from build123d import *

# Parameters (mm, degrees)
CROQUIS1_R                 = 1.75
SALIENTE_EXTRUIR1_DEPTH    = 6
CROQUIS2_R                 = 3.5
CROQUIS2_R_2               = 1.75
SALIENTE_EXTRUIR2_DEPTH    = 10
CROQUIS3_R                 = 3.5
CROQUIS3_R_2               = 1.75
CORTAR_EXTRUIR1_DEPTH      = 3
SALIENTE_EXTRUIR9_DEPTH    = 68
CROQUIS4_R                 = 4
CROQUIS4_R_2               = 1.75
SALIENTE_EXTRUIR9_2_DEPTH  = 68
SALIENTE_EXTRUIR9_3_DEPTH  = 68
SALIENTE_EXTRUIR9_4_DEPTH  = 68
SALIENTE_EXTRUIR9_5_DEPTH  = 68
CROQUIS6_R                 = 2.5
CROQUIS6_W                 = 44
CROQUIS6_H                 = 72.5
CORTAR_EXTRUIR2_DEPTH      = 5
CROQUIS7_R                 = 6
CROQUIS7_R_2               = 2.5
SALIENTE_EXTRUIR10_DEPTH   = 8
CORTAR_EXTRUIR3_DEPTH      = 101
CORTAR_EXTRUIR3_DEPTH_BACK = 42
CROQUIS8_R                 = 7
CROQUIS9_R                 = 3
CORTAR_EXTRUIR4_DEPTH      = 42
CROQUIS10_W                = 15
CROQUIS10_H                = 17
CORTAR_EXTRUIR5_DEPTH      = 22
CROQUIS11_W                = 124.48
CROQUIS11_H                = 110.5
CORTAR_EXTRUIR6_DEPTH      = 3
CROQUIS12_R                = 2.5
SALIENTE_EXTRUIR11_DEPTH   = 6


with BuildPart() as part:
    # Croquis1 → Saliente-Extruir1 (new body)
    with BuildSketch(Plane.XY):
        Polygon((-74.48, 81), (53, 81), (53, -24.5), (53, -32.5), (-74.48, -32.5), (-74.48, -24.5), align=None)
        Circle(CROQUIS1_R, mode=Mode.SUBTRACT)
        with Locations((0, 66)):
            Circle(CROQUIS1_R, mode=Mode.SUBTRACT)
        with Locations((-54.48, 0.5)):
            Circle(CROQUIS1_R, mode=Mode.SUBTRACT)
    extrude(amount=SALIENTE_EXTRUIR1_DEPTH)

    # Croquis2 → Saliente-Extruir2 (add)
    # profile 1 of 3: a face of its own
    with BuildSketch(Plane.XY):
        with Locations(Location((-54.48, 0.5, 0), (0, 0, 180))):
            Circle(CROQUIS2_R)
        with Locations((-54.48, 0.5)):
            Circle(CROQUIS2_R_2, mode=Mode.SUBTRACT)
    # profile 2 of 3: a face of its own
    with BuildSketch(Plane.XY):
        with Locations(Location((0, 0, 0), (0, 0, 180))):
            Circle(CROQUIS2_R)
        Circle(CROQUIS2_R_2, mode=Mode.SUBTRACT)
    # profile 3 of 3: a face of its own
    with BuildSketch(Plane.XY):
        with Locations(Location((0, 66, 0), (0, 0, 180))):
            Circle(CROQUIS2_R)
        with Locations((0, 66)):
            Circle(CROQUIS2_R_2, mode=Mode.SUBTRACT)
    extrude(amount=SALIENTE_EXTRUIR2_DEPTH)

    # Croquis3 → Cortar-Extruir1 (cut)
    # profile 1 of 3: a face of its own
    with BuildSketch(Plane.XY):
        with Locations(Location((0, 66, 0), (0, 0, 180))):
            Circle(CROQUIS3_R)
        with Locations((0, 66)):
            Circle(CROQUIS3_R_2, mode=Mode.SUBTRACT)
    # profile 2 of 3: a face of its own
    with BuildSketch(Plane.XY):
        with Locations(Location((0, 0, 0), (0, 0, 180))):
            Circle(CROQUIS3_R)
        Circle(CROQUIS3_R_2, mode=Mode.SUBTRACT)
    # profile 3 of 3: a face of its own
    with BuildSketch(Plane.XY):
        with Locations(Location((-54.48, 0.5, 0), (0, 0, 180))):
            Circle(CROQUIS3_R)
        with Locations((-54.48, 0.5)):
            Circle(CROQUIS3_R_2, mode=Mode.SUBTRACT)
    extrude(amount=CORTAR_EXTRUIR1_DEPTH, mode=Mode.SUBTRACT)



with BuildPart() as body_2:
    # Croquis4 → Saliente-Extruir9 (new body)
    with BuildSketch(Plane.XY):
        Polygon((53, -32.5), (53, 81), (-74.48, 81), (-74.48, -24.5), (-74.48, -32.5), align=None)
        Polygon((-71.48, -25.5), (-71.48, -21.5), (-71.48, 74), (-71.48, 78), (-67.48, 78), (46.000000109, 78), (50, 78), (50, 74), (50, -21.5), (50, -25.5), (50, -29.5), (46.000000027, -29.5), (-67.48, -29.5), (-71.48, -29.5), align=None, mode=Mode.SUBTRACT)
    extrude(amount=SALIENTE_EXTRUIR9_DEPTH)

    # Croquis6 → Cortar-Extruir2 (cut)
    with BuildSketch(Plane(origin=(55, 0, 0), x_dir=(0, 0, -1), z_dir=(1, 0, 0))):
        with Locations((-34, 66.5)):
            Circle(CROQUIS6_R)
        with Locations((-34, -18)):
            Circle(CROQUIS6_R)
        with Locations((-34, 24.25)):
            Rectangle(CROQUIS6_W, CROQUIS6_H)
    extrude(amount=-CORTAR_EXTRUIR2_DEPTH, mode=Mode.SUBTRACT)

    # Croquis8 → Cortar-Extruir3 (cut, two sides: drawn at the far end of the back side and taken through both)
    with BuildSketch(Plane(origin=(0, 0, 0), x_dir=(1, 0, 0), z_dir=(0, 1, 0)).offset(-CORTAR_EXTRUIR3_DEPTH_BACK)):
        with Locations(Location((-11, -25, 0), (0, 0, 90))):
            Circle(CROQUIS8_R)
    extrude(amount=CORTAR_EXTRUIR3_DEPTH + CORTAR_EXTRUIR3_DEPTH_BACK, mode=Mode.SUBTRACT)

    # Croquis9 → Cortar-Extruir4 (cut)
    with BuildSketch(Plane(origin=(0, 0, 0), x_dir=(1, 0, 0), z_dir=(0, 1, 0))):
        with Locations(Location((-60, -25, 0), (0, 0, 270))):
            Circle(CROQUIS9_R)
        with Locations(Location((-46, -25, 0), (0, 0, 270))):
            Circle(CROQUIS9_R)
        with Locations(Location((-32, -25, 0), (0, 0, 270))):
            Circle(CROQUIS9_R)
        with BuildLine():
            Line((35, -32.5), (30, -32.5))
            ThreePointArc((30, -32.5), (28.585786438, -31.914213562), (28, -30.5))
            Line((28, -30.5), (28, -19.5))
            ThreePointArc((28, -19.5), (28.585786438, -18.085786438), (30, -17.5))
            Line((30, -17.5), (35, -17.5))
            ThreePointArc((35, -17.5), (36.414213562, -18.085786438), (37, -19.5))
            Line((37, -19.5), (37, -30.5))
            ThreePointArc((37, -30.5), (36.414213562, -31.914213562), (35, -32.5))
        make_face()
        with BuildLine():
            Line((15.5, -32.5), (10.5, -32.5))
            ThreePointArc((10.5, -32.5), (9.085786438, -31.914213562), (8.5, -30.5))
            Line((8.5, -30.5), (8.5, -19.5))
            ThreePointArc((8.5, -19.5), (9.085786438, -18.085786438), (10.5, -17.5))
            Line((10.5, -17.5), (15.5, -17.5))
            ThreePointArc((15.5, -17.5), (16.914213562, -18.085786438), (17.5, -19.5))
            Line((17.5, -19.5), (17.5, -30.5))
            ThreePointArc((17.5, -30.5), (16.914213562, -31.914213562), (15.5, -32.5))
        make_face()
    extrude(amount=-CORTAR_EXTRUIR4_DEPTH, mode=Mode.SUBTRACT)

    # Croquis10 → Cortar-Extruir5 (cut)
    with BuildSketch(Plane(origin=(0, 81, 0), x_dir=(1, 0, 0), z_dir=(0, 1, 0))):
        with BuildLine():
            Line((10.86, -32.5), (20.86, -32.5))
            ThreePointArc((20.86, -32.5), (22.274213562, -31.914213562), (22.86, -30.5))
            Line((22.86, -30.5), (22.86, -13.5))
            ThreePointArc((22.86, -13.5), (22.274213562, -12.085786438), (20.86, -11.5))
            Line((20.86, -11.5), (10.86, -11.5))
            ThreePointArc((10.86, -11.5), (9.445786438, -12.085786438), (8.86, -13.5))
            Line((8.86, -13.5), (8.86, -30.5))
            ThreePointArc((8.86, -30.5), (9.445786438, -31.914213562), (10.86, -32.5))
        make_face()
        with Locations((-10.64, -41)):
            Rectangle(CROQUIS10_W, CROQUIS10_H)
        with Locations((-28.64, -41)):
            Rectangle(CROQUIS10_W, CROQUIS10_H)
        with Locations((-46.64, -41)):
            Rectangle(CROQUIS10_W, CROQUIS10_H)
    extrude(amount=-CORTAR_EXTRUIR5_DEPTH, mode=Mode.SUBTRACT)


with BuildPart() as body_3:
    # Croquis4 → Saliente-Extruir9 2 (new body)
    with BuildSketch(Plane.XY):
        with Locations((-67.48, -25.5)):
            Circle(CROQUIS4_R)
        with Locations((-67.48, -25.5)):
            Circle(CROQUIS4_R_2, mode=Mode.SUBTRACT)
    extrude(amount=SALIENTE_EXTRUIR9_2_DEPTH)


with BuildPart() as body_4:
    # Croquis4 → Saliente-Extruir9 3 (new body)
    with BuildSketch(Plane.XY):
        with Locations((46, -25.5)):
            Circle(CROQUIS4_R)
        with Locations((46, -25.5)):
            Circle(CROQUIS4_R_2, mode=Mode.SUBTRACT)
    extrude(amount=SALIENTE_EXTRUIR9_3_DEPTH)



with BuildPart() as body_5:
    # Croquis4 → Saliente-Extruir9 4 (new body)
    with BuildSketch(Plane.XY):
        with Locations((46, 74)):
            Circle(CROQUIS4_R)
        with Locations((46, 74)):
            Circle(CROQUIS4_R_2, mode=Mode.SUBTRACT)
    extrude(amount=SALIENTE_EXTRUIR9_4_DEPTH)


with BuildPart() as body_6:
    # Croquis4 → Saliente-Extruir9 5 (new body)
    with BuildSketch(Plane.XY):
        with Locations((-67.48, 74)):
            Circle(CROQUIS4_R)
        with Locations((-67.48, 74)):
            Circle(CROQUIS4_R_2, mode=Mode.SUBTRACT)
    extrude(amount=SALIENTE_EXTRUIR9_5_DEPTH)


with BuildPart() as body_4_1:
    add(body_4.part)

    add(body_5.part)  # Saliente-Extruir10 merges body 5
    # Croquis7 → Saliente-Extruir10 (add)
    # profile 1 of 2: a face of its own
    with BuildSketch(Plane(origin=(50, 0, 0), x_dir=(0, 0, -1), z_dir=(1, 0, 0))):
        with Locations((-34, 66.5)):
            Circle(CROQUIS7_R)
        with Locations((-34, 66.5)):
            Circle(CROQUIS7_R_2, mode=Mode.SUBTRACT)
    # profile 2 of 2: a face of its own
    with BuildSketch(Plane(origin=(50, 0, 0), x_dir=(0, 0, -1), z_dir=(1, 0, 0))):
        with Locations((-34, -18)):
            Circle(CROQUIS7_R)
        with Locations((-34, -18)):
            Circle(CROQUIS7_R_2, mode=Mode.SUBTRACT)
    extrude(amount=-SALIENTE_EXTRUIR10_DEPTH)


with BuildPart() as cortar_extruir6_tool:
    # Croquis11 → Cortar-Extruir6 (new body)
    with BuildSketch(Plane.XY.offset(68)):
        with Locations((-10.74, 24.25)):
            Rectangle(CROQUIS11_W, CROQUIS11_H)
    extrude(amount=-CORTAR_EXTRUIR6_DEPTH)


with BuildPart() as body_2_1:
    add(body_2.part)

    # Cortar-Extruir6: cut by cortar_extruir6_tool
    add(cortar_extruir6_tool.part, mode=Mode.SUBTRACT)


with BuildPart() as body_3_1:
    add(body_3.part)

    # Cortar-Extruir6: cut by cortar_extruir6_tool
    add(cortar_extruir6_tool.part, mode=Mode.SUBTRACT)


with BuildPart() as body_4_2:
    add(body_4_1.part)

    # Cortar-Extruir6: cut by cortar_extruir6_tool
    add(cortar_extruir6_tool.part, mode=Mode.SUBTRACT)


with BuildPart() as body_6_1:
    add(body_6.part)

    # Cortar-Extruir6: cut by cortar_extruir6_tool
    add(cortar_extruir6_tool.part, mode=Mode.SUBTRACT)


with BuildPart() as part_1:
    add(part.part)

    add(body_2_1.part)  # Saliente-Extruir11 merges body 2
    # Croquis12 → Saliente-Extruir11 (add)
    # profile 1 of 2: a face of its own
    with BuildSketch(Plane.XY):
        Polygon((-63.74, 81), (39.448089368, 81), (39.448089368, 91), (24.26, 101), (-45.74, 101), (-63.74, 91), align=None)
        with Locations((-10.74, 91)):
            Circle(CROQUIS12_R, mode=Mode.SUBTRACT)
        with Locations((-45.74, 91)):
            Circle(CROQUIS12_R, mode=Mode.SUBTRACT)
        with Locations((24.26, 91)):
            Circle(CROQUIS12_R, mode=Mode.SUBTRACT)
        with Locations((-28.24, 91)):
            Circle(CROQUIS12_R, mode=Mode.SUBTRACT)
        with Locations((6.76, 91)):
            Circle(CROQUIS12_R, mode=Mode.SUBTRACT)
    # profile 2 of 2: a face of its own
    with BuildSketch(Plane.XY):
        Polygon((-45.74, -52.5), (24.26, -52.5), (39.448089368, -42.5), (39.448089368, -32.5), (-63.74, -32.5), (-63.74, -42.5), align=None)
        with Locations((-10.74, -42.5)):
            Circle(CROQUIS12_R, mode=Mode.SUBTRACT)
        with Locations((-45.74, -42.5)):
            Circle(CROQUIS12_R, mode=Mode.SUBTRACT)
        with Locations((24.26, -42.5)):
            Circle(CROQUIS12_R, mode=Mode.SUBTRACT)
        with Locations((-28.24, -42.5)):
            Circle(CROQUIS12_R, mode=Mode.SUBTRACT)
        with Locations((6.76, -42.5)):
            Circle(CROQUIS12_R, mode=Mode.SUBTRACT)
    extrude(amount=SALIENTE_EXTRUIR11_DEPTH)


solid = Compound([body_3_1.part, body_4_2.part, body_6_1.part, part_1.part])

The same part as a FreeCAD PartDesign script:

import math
import FreeCAD as App
import Part
import Sketcher


def add_polygon(sketch, points):
    """Adds a closed chain of lines whose ends are joined by coincident constraints."""
    first, n = sketch.GeometryCount, len(points)
    for a, b in zip(points, points[1:] + points[:1]):
        sketch.addGeometry(Part.LineSegment(App.Vector(*a, 0), App.Vector(*b, 0)), False)
    for i in range(n):
        sketch.addConstraint(Sketcher.Constraint("Coincident", first + i, 2, first + (i + 1) % n, 1))

doc = App.newDocument("Part")
body = doc.addObject("PartDesign::Body", "Body")

# Sketch on XY plane
sketch1 = body.newObject("Sketcher::SketchObject", "Sketch")
sketch1.AttachmentSupport = (doc.getObject("XY_Plane"), [""])
sketch1.MapMode = "FlatFace"
add_polygon(sketch1, [(53, 81), (-74.5, 81), (-74.5, -32.5), (53, -32.5)])  # lines 0-3
sketch1.addGeometry(Part.Circle(App.Vector(0, 0, 0), App.Vector(0, 0, 1), 1.8), False)  # 4
sketch1.addGeometry(Part.Circle(App.Vector(-54.5, 0.5, 0), App.Vector(0, 0, 1), 1.8), False)  # 5
sketch1.addGeometry(Part.Circle(App.Vector(0, 66, 0), App.Vector(0, 0, 1), 1.8), False)  # 6
sketch1.addConstraint(Sketcher.Constraint("Horizontal", 0))
sketch1.addConstraint(Sketcher.Constraint("Vertical", 1))
sketch1.addConstraint(Sketcher.Constraint("Horizontal", 2))
sketch1.addConstraint(Sketcher.Constraint("Vertical", 3))
sketch1.addConstraint(Sketcher.Constraint("Coincident", 4, 3, -1, 1))
sketch1.addConstraint(Sketcher.Constraint("Equal", 4, 5))
sketch1.addConstraint(Sketcher.Constraint("Equal", 5, 6))
sketch1.addConstraint(Sketcher.Constraint("PointOnObject", 6, 3, -2))
sketch1.addConstraint(Sketcher.Constraint("Diameter", 4, 3.5))
sketch1.addConstraint(Sketcher.Constraint("DistanceY", 1, 2, 1, 1, 113.5))
sketch1.addConstraint(Sketcher.Constraint("DistanceY", -1, 1, 6, 3, 66.0))
sketch1.addConstraint(Sketcher.Constraint("DistanceY", -1, 1, 0, 2, 81.0))
sketch1.addConstraint(Sketcher.Constraint("DistanceX", -1, 1, 2, 2, 53.0))
sketch1.addConstraint(Sketcher.Constraint("DistanceX", 0, 2, 5, 3, 20.0))
sketch1.addConstraint(Sketcher.Constraint("DistanceY", 1, 2, 5, 3, 33.0))
sketch1.addConstraint(Sketcher.Constraint("DistanceX", 0, 2, 0, 1, 127.48))
pad1 = body.newObject("PartDesign::Pad", "Pad")
pad1.Profile = sketch1
pad1.Length = 6

# Sketch on XY plane
sketch2 = body.newObject("Sketcher::SketchObject", "Sketch001")
sketch2.AttachmentSupport = (doc.getObject("XY_Plane"), [""])
sketch2.MapMode = "FlatFace"
sketch2.addGeometry(Part.Circle(App.Vector(-54.5, 0.5, 0), App.Vector(0, 0, 1), 3.5), False)
sketch2.addGeometry(Part.Circle(App.Vector(-54.5, 0.5, 0), App.Vector(0, 0, 1), 1.8), False)
sketch2.addGeometry(Part.Circle(App.Vector(0, 0, 0), App.Vector(0, 0, 1), 3.5), False)
sketch2.addGeometry(Part.Circle(App.Vector(0, 0, 0), App.Vector(0, 0, 1), 1.8), False)
sketch2.addGeometry(Part.Circle(App.Vector(0, 66, 0), App.Vector(0, 0, 1), 3.5), False)
sketch2.addGeometry(Part.Circle(App.Vector(0, 66, 0), App.Vector(0, 0, 1), 1.8), False)
sketch2.addConstraint(Sketcher.Constraint("Coincident", 2, 3, -1, 1))
sketch2.addConstraint(Sketcher.Constraint("Coincident", 3, 3, -1, 1))
sketch2.addConstraint(Sketcher.Constraint("Coincident", 1, 3, 0, 3))
sketch2.addConstraint(Sketcher.Constraint("Coincident", 5, 3, 4, 3))
sketch2.addConstraint(Sketcher.Constraint("Equal", 0, 2))
sketch2.addConstraint(Sketcher.Constraint("Equal", 1, 3))
sketch2.addConstraint(Sketcher.Constraint("Equal", 2, 4))
sketch2.addConstraint(Sketcher.Constraint("Equal", 3, 5))
sketch2.addConstraint(Sketcher.Constraint("PointOnObject", 4, 3, -2))
sketch2.addConstraint(Sketcher.Constraint("Diameter", 0, 7.0))
sketch2.addConstraint(Sketcher.Constraint("Diameter", 1, 3.5))
sketch2.addConstraint(Sketcher.Constraint("DistanceY", -1, 1, 4, 3, 66.0))
sketch2.addConstraint(Sketcher.Constraint("DistanceY", -1, 1, 0, 3, 0.5))
sketch2.addConstraint(Sketcher.Constraint("DistanceX", 0, 3, -1, 1, 54.48))
pad2 = body.newObject("PartDesign::Pad", "Pad001")
pad2.Profile = sketch2
pad2.Length = 10

# Sketch on XY plane
sketch3 = body.newObject("Sketcher::SketchObject", "Sketch002")
sketch3.AttachmentSupport = (doc.getObject("XY_Plane"), [""])
sketch3.MapMode = "FlatFace"
sketch3.addGeometry(Part.Circle(App.Vector(0, 66, 0), App.Vector(0, 0, 1), 3.5), False)
sketch3.addGeometry(Part.Circle(App.Vector(0, 66, 0), App.Vector(0, 0, 1), 1.8), False)
sketch3.addGeometry(Part.Circle(App.Vector(0, 0, 0), App.Vector(0, 0, 1), 3.5), False)
sketch3.addGeometry(Part.Circle(App.Vector(0, 0, 0), App.Vector(0, 0, 1), 1.8), False)
sketch3.addGeometry(Part.Circle(App.Vector(-54.5, 0.5, 0), App.Vector(0, 0, 1), 3.5), False)
sketch3.addGeometry(Part.Circle(App.Vector(-54.5, 0.5, 0), App.Vector(0, 0, 1), 1.8), False)
sketch3.addConstraint(Sketcher.Constraint("Coincident", 2, 3, -1, 1))
sketch3.addConstraint(Sketcher.Constraint("Coincident", 3, 3, -1, 1))
sketch3.addConstraint(Sketcher.Constraint("Coincident", 1, 3, 0, 3))
sketch3.addConstraint(Sketcher.Constraint("Coincident", 5, 3, 4, 3))
sketch3.addConstraint(Sketcher.Constraint("Equal", 0, 2))
sketch3.addConstraint(Sketcher.Constraint("Equal", 1, 3))
sketch3.addConstraint(Sketcher.Constraint("Equal", 2, 4))
sketch3.addConstraint(Sketcher.Constraint("Equal", 3, 5))
sketch3.addConstraint(Sketcher.Constraint("PointOnObject", 0, 3, -2))
sketch3.addConstraint(Sketcher.Constraint("Diameter", 0, 7.0))
sketch3.addConstraint(Sketcher.Constraint("Diameter", 1, 3.5))
sketch3.addConstraint(Sketcher.Constraint("DistanceY", -1, 1, 0, 3, 66.0))
sketch3.addConstraint(Sketcher.Constraint("DistanceY", -1, 1, 4, 3, 0.5))
sketch3.addConstraint(Sketcher.Constraint("DistanceX", 4, 3, -1, 1, 54.48))
pocket1 = body.newObject("PartDesign::Pocket", "Pocket")
pocket1.Profile = sketch3
pocket1.Length = 3
pocket1.Reversed = True
body2 = doc.addObject("PartDesign::Body", "Body001")

# Sketch on XY plane
sketch4 = body2.newObject("Sketcher::SketchObject", "Sketch003")
sketch4.AttachmentSupport = (doc.getObject("XY_Plane001"), [""])
sketch4.MapMode = "FlatFace"
add_polygon(sketch4, [(53, -32), (53, 81), (-74, 81), (-74, -32)])  # lines 0-3
add_polygon(sketch4, [(-71, -30), (-71, 78), (50, 78), (50, -30)])  # lines 4-7
sketch4.addConstraint(Sketcher.Constraint("Vertical", 0))
sketch4.addConstraint(Sketcher.Constraint("Horizontal", 1))
sketch4.addConstraint(Sketcher.Constraint("Vertical", 2))
sketch4.addConstraint(Sketcher.Constraint("Horizontal", 3))
sketch4.addConstraint(Sketcher.Constraint("Vertical", 4))
sketch4.addConstraint(Sketcher.Constraint("Horizontal", 5))
sketch4.addConstraint(Sketcher.Constraint("Vertical", 6))
sketch4.addConstraint(Sketcher.Constraint("Horizontal", 7))
sketch4.addConstraint(Sketcher.Constraint("DistanceY", 0, 1, 0, 2, 113.5))
sketch4.addConstraint(Sketcher.Constraint("DistanceY", 4, 1, 4, 2, 107.5))
sketch4.addConstraint(Sketcher.Constraint("DistanceX", -1, 1, 0, 2, 53.0))
sketch4.addConstraint(Sketcher.Constraint("DistanceY", -1, 1, 0, 2, 81.0))
sketch4.addConstraint(Sketcher.Constraint("DistanceY", -1, 1, 4, 2, 78.0))
sketch4.addConstraint(Sketcher.Constraint("DistanceX", -1, 1, 5, 2, 50.0))
sketch4.addConstraint(Sketcher.Constraint("DistanceX", 1, 2, 4, 2, 3.0))
sketch4.addConstraint(Sketcher.Constraint("DistanceX", 1, 2, 1, 1, 127.48))
pad3 = body2.newObject("PartDesign::Pad", "Pad002")
pad3.Profile = sketch4
pad3.Length = 68

# Sketch on YZ plane
sketch5 = body2.newObject("Sketcher::SketchObject", "Sketch004")
sketch5.AttachmentSupport = (doc.getObject("YZ_Plane001"), [""])
sketch5.MapMode = "FlatFace"
sketch5.AttachmentOffset = App.Placement(App.Vector(0, 0, 55), App.Rotation())
sketch5.addGeometry(Part.Circle(App.Vector(66.5, 34, 0), App.Vector(0, 0, 1), 2.5), False)  # 0
sketch5.addGeometry(Part.Circle(App.Vector(-18, 34, 0), App.Vector(0, 0, 1), 2.5), False)  # 1
add_polygon(sketch5, [(60.5, 56), (-12, 56), (-12, 12), (60.5, 12)])  # lines 2-5
sketch5.addConstraint(Sketcher.Constraint("Horizontal", 2))
sketch5.addConstraint(Sketcher.Constraint("Vertical", 3))
sketch5.addConstraint(Sketcher.Constraint("Horizontal", 4))
sketch5.addConstraint(Sketcher.Constraint("Vertical", 5))
sketch5.addConstraint(Sketcher.Constraint("Equal", 0, 1))
sketch5.addConstraint(Sketcher.Constraint("Horizontal", 0, 3, 1, 3))
sketch5.addConstraint(Sketcher.Constraint("Diameter", 0, 5.0))
sketch5.addConstraint(Sketcher.Constraint("DistanceY", 3, 2, 3, 1, 44.0))
sketch5.addConstraint(Sketcher.Constraint("DistanceX", 2, 2, 2, 1, 72.5))
sketch5.addConstraint(Sketcher.Constraint("DistanceY", -1, 1, 0, 3, 34.0))
sketch5.addConstraint(Sketcher.Constraint("DistanceX", 1, 3, -1, 1, 18.0))
sketch5.addConstraint(Sketcher.Constraint("DistanceX", 2, 2, -1, 1, 12.0))
sketch5.addConstraint(Sketcher.Constraint("DistanceY", -1, 1, 2, 2, 56.0))
sketch5.addConstraint(Sketcher.Constraint("DistanceX", 4, 2, 0, 3, 6.0))
pocket2 = body2.newObject("PartDesign::Pocket", "Pocket001")
pocket2.Profile = sketch5
pocket2.Length = 5

# Sketch on XZ plane
sketch6 = body2.newObject("Sketcher::SketchObject", "Sketch005")
sketch6.AttachmentSupport = (doc.getObject("XZ_Plane001"), [""])
sketch6.MapMode = "FlatFace"
sketch6.addGeometry(Part.Circle(App.Vector(-11, 25, 0), App.Vector(0, 0, 1), 7), False)
sketch6.addConstraint(Sketcher.Constraint("Diameter", 0, 14.0))
sketch6.addConstraint(Sketcher.Constraint("DistanceX", 0, 3, -1, 1, 11.0))
sketch6.addConstraint(Sketcher.Constraint("DistanceY", -1, 1, 0, 3, 25.0))
pocket3 = body2.newObject("PartDesign::Pocket", "Pocket002")
pocket3.Profile = sketch6
pocket3.Type = "ThroughAll"
pocket3.Midplane = True

# Sketch on XZ plane
sketch7 = body2.newObject("Sketcher::SketchObject", "Sketch006")
sketch7.AttachmentSupport = (doc.getObject("XZ_Plane001"), [""])
sketch7.MapMode = "FlatFace"
sketch7.addGeometry(Part.Circle(App.Vector(-60, 25, 0), App.Vector(0, 0, 1), 3), False)
sketch7.addGeometry(Part.Circle(App.Vector(-46, 25, 0), App.Vector(0, 0, 1), 3), False)
sketch7.addGeometry(Part.Circle(App.Vector(-32, 25, 0), App.Vector(0, 0, 1), 3), False)
sketch7.addGeometry(Part.LineSegment(App.Vector(30, 32.5, 0), App.Vector(35, 32.5, 0)), False)
sketch7.addGeometry(Part.ArcOfCircle(Part.Circle(App.Vector(35, 30.5, 0), App.Vector(0, 0, 1), 2), math.radians(0), math.radians(90)), False)
sketch7.addGeometry(Part.LineSegment(App.Vector(37, 30.5, 0), App.Vector(37, 19.5, 0)), False)
sketch7.addGeometry(Part.ArcOfCircle(Part.Circle(App.Vector(35, 19.5, 0), App.Vector(0, 0, 1), 2), math.radians(-90), math.radians(0)), False)
sketch7.addGeometry(Part.LineSegment(App.Vector(35, 17.5, 0), App.Vector(30, 17.5, 0)), False)
sketch7.addGeometry(Part.ArcOfCircle(Part.Circle(App.Vector(30, 19.5, 0), App.Vector(0, 0, 1), 2), math.radians(-180), math.radians(-90)), False)
sketch7.addGeometry(Part.LineSegment(App.Vector(28, 19.5, 0), App.Vector(28, 30.5, 0)), False)
sketch7.addGeometry(Part.ArcOfCircle(Part.Circle(App.Vector(30, 30.5, 0), App.Vector(0, 0, 1), 2), math.radians(90), math.radians(180)), False)
sketch7.addGeometry(Part.LineSegment(App.Vector(10.5, 32.5, 0), App.Vector(15.5, 32.5, 0)), False)
sketch7.addGeometry(Part.ArcOfCircle(Part.Circle(App.Vector(15.5, 30.5, 0), App.Vector(0, 0, 1), 2), math.radians(0), math.radians(90)), False)
sketch7.addGeometry(Part.LineSegment(App.Vector(17.5, 30.5, 0), App.Vector(17.5, 19.5, 0)), False)
sketch7.addGeometry(Part.ArcOfCircle(Part.Circle(App.Vector(15.5, 19.5, 0), App.Vector(0, 0, 1), 2), math.radians(-90), math.radians(0)), False)
sketch7.addGeometry(Part.LineSegment(App.Vector(15.5, 17.5, 0), App.Vector(10.5, 17.5, 0)), False)
sketch7.addGeometry(Part.ArcOfCircle(Part.Circle(App.Vector(10.5, 19.5, 0), App.Vector(0, 0, 1), 2), math.radians(-180), math.radians(-90)), False)
sketch7.addGeometry(Part.LineSegment(App.Vector(8.5, 19.5, 0), App.Vector(8.5, 30.5, 0)), False)
sketch7.addGeometry(Part.ArcOfCircle(Part.Circle(App.Vector(10.5, 30.5, 0), App.Vector(0, 0, 1), 2), math.radians(90), math.radians(180)), False)
sketch7.addConstraint(Sketcher.Constraint("Tangent", 3, 2, 4, 2))
sketch7.addConstraint(Sketcher.Constraint("Tangent", 4, 1, 5, 1))
sketch7.addConstraint(Sketcher.Constraint("Tangent", 5, 2, 6, 2))
sketch7.addConstraint(Sketcher.Constraint("Tangent", 6, 1, 7, 1))
sketch7.addConstraint(Sketcher.Constraint("Tangent", 7, 2, 8, 2))
sketch7.addConstraint(Sketcher.Constraint("Tangent", 8, 1, 9, 1))
sketch7.addConstraint(Sketcher.Constraint("Tangent", 9, 2, 10, 2))
sketch7.addConstraint(Sketcher.Constraint("Tangent", 10, 1, 3, 1))
sketch7.addConstraint(Sketcher.Constraint("Tangent", 11, 2, 12, 2))
sketch7.addConstraint(Sketcher.Constraint("Tangent", 12, 1, 13, 1))
sketch7.addConstraint(Sketcher.Constraint("Tangent", 13, 2, 14, 2))
sketch7.addConstraint(Sketcher.Constraint("Tangent", 14, 1, 15, 1))
sketch7.addConstraint(Sketcher.Constraint("Tangent", 15, 2, 16, 2))
sketch7.addConstraint(Sketcher.Constraint("Tangent", 16, 1, 17, 1))
sketch7.addConstraint(Sketcher.Constraint("Tangent", 17, 2, 18, 2))
sketch7.addConstraint(Sketcher.Constraint("Tangent", 18, 1, 11, 1))
sketch7.addConstraint(Sketcher.Constraint("Horizontal", 3))
sketch7.addConstraint(Sketcher.Constraint("Vertical", 5))
sketch7.addConstraint(Sketcher.Constraint("Horizontal", 7))
sketch7.addConstraint(Sketcher.Constraint("Vertical", 9))
sketch7.addConstraint(Sketcher.Constraint("Horizontal", 11))
sketch7.addConstraint(Sketcher.Constraint("Vertical", 13))
sketch7.addConstraint(Sketcher.Constraint("Horizontal", 15))
sketch7.addConstraint(Sketcher.Constraint("Vertical", 17))
sketch7.addConstraint(Sketcher.Constraint("Equal", 0, 1))
sketch7.addConstraint(Sketcher.Constraint("Equal", 1, 2))
sketch7.addConstraint(Sketcher.Constraint("Equal", 4, 6))
sketch7.addConstraint(Sketcher.Constraint("Equal", 6, 8))
sketch7.addConstraint(Sketcher.Constraint("Equal", 8, 10))
sketch7.addConstraint(Sketcher.Constraint("Equal", 10, 12))
sketch7.addConstraint(Sketcher.Constraint("Equal", 12, 14))
sketch7.addConstraint(Sketcher.Constraint("Equal", 14, 16))
sketch7.addConstraint(Sketcher.Constraint("Equal", 16, 18))
sketch7.addConstraint(Sketcher.Constraint("Horizontal", 0, 3, 1, 3))
sketch7.addConstraint(Sketcher.Constraint("Horizontal", 1, 3, 2, 3))
sketch7.addConstraint(Sketcher.Constraint("Horizontal", 10, 3, 12, 3))
sketch7.addConstraint(Sketcher.Constraint("Horizontal", 8, 3, 14, 3))
sketch7.addConstraint(Sketcher.Constraint("Equal", 7, 11))
sketch7.addConstraint(Sketcher.Constraint("Diameter", 0, 6.0))
sketch7.addConstraint(Sketcher.Constraint("Radius", 4, 2.0))
sketch7.addConstraint(Sketcher.Constraint("DistanceX", 3, 1, 3, 2, 5.0))
sketch7.addConstraint(Sketcher.Constraint("DistanceY", 5, 2, 5, 1, 11.0))
sketch7.addConstraint(Sketcher.Constraint("DistanceX", 0, 3, -1, 1, 60.0))
sketch7.addConstraint(Sketcher.Constraint("DistanceY", -1, 1, 0, 3, 25.0))
sketch7.addConstraint(Sketcher.Constraint("DistanceX", 1, 3, -1, 1, 46.0))
sketch7.addConstraint(Sketcher.Constraint("DistanceX", 2, 3, -1, 1, 32.0))
sketch7.addConstraint(Sketcher.Constraint("DistanceX", -1, 1, 4, 3, 35.0))
sketch7.addConstraint(Sketcher.Constraint("DistanceY", -1, 1, 4, 3, 30.5))
sketch7.addConstraint(Sketcher.Constraint("DistanceX", -1, 1, 12, 3, 15.5))
pocket4 = body2.newObject("PartDesign::Pocket", "Pocket003")
pocket4.Profile = sketch7
pocket4.Length = 42
pocket4.Reversed = True

# Sketch on XZ plane
sketch8 = body2.newObject("Sketcher::SketchObject", "Sketch007")
sketch8.AttachmentSupport = (doc.getObject("XZ_Plane001"), [""])
sketch8.MapMode = "FlatFace"
sketch8.AttachmentOffset = App.Placement(App.Vector(0, 0, -81), App.Rotation())
sketch8.addGeometry(Part.LineSegment(App.Vector(10.9, 32.5, 0), App.Vector(20.9, 32.5, 0)), False)  # 0
sketch8.addGeometry(Part.ArcOfCircle(Part.Circle(App.Vector(20.9, 30.5, 0), App.Vector(0, 0, 1), 2), math.radians(0), math.radians(90)), False)  # 1
sketch8.addGeometry(Part.LineSegment(App.Vector(22.9, 30.5, 0), App.Vector(22.9, 13.5, 0)), False)  # 2
sketch8.addGeometry(Part.ArcOfCircle(Part.Circle(App.Vector(20.9, 13.5, 0), App.Vector(0, 0, 1), 2), math.radians(-90), math.radians(0)), False)  # 3
sketch8.addGeometry(Part.LineSegment(App.Vector(20.9, 11.5, 0), App.Vector(10.9, 11.5, 0)), False)  # 4
sketch8.addGeometry(Part.ArcOfCircle(Part.Circle(App.Vector(10.9, 13.5, 0), App.Vector(0, 0, 1), 2), math.radians(-180), math.radians(-90)), False)  # 5
sketch8.addGeometry(Part.LineSegment(App.Vector(8.9, 13.5, 0), App.Vector(8.9, 30.5, 0)), False)  # 6
sketch8.addGeometry(Part.ArcOfCircle(Part.Circle(App.Vector(10.9, 30.5, 0), App.Vector(0, 0, 1), 2), math.radians(90), math.radians(180)), False)  # 7
add_polygon(sketch8, [(-18.1, 32.5), (-18.1, 49.5), (-3.1, 49.5), (-3.1, 32.5)])  # lines 8-11
add_polygon(sketch8, [(-36.1, 32.5), (-36.1, 49.5), (-21.1, 49.5), (-21.1, 32.5)])  # lines 12-15
add_polygon(sketch8, [(-54.1, 32.5), (-54.1, 49.5), (-39.1, 49.5), (-39.1, 32.5)])  # lines 16-19
sketch8.addConstraint(Sketcher.Constraint("Tangent", 0, 2, 1, 2))
sketch8.addConstraint(Sketcher.Constraint("Tangent", 1, 1, 2, 1))
sketch8.addConstraint(Sketcher.Constraint("Tangent", 2, 2, 3, 2))
sketch8.addConstraint(Sketcher.Constraint("Tangent", 3, 1, 4, 1))
sketch8.addConstraint(Sketcher.Constraint("Tangent", 4, 2, 5, 2))
sketch8.addConstraint(Sketcher.Constraint("Tangent", 5, 1, 6, 1))
sketch8.addConstraint(Sketcher.Constraint("Tangent", 6, 2, 7, 2))
sketch8.addConstraint(Sketcher.Constraint("Tangent", 7, 1, 0, 1))
sketch8.addConstraint(Sketcher.Constraint("Horizontal", 0))
sketch8.addConstraint(Sketcher.Constraint("Vertical", 2))
sketch8.addConstraint(Sketcher.Constraint("Horizontal", 4))
sketch8.addConstraint(Sketcher.Constraint("Vertical", 6))
sketch8.addConstraint(Sketcher.Constraint("Vertical", 8))
sketch8.addConstraint(Sketcher.Constraint("Horizontal", 9))
sketch8.addConstraint(Sketcher.Constraint("Vertical", 10))
sketch8.addConstraint(Sketcher.Constraint("Horizontal", 11))
sketch8.addConstraint(Sketcher.Constraint("Vertical", 12))
sketch8.addConstraint(Sketcher.Constraint("Horizontal", 13))
sketch8.addConstraint(Sketcher.Constraint("Vertical", 14))
sketch8.addConstraint(Sketcher.Constraint("Horizontal", 15))
sketch8.addConstraint(Sketcher.Constraint("Vertical", 16))
sketch8.addConstraint(Sketcher.Constraint("Horizontal", 17))
sketch8.addConstraint(Sketcher.Constraint("Vertical", 18))
sketch8.addConstraint(Sketcher.Constraint("Horizontal", 19))
sketch8.addConstraint(Sketcher.Constraint("Equal", 1, 3))
sketch8.addConstraint(Sketcher.Constraint("Equal", 3, 5))
sketch8.addConstraint(Sketcher.Constraint("Equal", 5, 7))
sketch8.addConstraint(Sketcher.Constraint("Horizontal", 7, 1, 10, 2))
sketch8.addConstraint(Sketcher.Constraint("Horizontal", 9, 2, 12, 2))
sketch8.addConstraint(Sketcher.Constraint("Horizontal", 11, 2, 14, 2))
sketch8.addConstraint(Sketcher.Constraint("Horizontal", 13, 2, 16, 2))
sketch8.addConstraint(Sketcher.Constraint("Horizontal", 15, 2, 18, 2))
sketch8.addConstraint(Sketcher.Constraint("Equal", 11, 13))
sketch8.addConstraint(Sketcher.Constraint("Equal", 15, 17))
sketch8.addConstraint(Sketcher.Constraint("Equal", 6, 8))
sketch8.addConstraint(Sketcher.Constraint("Radius", 1, 2.0))
sketch8.addConstraint(Sketcher.Constraint("DistanceX", 0, 1, 0, 2, 10.0))
sketch8.addConstraint(Sketcher.Constraint("DistanceX", 9, 1, 9, 2, 15.0))
sketch8.addConstraint(Sketcher.Constraint("DistanceY", 2, 2, 2, 1, 17.0))
sketch8.addConstraint(Sketcher.Constraint("DistanceX", 8, 2, 6, 2, 27.0))
sketch8.addConstraint(Sketcher.Constraint("DistanceX", 12, 2, 8, 2, 18.0))
sketch8.addConstraint(Sketcher.Constraint("DistanceX", 16, 2, 12, 2, 18.0))
sketch8.addConstraint(Sketcher.Constraint("DistanceY", -1, 1, 1, 3, 30.5))
sketch8.addConstraint(Sketcher.Constraint("DistanceX", -1, 1, 1, 3, 20.86))
pocket5 = body2.newObject("PartDesign::Pocket", "Pocket004")
pocket5.Profile = sketch8
pocket5.Length = 22
pocket5.Reversed = True
body3 = doc.addObject("PartDesign::Body", "Body002")

# Sketch on XY plane
sketch9 = body3.newObject("Sketcher::SketchObject", "Sketch008")
sketch9.AttachmentSupport = (doc.getObject("XY_Plane002"), [""])
sketch9.MapMode = "FlatFace"
sketch9.addGeometry(Part.Circle(App.Vector(-67.5, -25.5, 0), App.Vector(0, 0, 1), 4), False)
sketch9.addGeometry(Part.Circle(App.Vector(-67.5, -25.5, 0), App.Vector(0, 0, 1), 1.8), False)
sketch9.addConstraint(Sketcher.Constraint("Coincident", 1, 3, 0, 3))
sketch9.addConstraint(Sketcher.Constraint("Diameter", 0, 8.0))
sketch9.addConstraint(Sketcher.Constraint("Diameter", 1, 3.5))
sketch9.addConstraint(Sketcher.Constraint("DistanceY", 0, 3, -1, 1, 25.5))
sketch9.addConstraint(Sketcher.Constraint("DistanceX", 0, 3, -1, 1, 67.48))
pad4 = body3.newObject("PartDesign::Pad", "Pad003")
pad4.Profile = sketch9
pad4.Length = 68
body4 = doc.addObject("PartDesign::Body", "Body003")

# Sketch on XY plane
sketch10 = body4.newObject("Sketcher::SketchObject", "Sketch009")
sketch10.AttachmentSupport = (doc.getObject("XY_Plane003"), [""])
sketch10.MapMode = "FlatFace"
sketch10.addGeometry(Part.Circle(App.Vector(46, -25.5, 0), App.Vector(0, 0, 1), 4), False)
sketch10.addGeometry(Part.Circle(App.Vector(46, -25.5, 0), App.Vector(0, 0, 1), 1.8), False)
sketch10.addConstraint(Sketcher.Constraint("Coincident", 1, 3, 0, 3))
sketch10.addConstraint(Sketcher.Constraint("Diameter", 0, 8.0))
sketch10.addConstraint(Sketcher.Constraint("Diameter", 1, 3.5))
sketch10.addConstraint(Sketcher.Constraint("DistanceX", -1, 1, 0, 3, 46.0))
sketch10.addConstraint(Sketcher.Constraint("DistanceY", 0, 3, -1, 1, 25.5))
pad5 = body4.newObject("PartDesign::Pad", "Pad004")
pad5.Profile = sketch10
pad5.Length = 68
body5 = doc.addObject("PartDesign::Body", "Body004")

# Sketch on XY plane
sketch11 = body5.newObject("Sketcher::SketchObject", "Sketch010")
sketch11.AttachmentSupport = (doc.getObject("XY_Plane004"), [""])
sketch11.MapMode = "FlatFace"
sketch11.addGeometry(Part.Circle(App.Vector(46, 74, 0), App.Vector(0, 0, 1), 4), False)
sketch11.addGeometry(Part.Circle(App.Vector(46, 74, 0), App.Vector(0, 0, 1), 1.8), False)
sketch11.addConstraint(Sketcher.Constraint("Coincident", 1, 3, 0, 3))
sketch11.addConstraint(Sketcher.Constraint("Diameter", 0, 8.0))
sketch11.addConstraint(Sketcher.Constraint("Diameter", 1, 3.5))
sketch11.addConstraint(Sketcher.Constraint("DistanceX", -1, 1, 0, 3, 46.0))
sketch11.addConstraint(Sketcher.Constraint("DistanceY", -1, 1, 0, 3, 74.0))
pad6 = body5.newObject("PartDesign::Pad", "Pad005")
pad6.Profile = sketch11
pad6.Length = 68
body6 = doc.addObject("PartDesign::Body", "Body005")

# Sketch on XY plane
sketch12 = body6.newObject("Sketcher::SketchObject", "Sketch011")
sketch12.AttachmentSupport = (doc.getObject("XY_Plane005"), [""])
sketch12.MapMode = "FlatFace"
sketch12.addGeometry(Part.Circle(App.Vector(-67.5, 74, 0), App.Vector(0, 0, 1), 4), False)
sketch12.addGeometry(Part.Circle(App.Vector(-67.5, 74, 0), App.Vector(0, 0, 1), 1.8), False)
sketch12.addConstraint(Sketcher.Constraint("Coincident", 1, 3, 0, 3))
sketch12.addConstraint(Sketcher.Constraint("Diameter", 0, 8.0))
sketch12.addConstraint(Sketcher.Constraint("Diameter", 1, 3.5))
sketch12.addConstraint(Sketcher.Constraint("DistanceY", -1, 1, 0, 3, 74.0))
sketch12.addConstraint(Sketcher.Constraint("DistanceX", 0, 3, -1, 1, 67.48))
pad7 = body6.newObject("PartDesign::Pad", "Pad006")
pad7.Profile = sketch12
pad7.Length = 68
body4.AllowCompound = True
doc.recompute()

boolean = body4.newObject("PartDesign::Boolean", "Boolean")
boolean.Type = "Fuse"
boolean.addObjects([body5])

# Sketch on YZ plane
sketch13 = body4.newObject("Sketcher::SketchObject", "Sketch012")
sketch13.AttachmentSupport = (doc.getObject("YZ_Plane003"), [""])
sketch13.MapMode = "FlatFace"
sketch13.AttachmentOffset = App.Placement(App.Vector(0, 0, 50), App.Rotation())
sketch13.addGeometry(Part.Circle(App.Vector(66.5, 34, 0), App.Vector(0, 0, 1), 6), False)
sketch13.addGeometry(Part.Circle(App.Vector(66.5, 34, 0), App.Vector(0, 0, 1), 2.5), False)
sketch13.addGeometry(Part.Circle(App.Vector(-18, 34, 0), App.Vector(0, 0, 1), 6), False)
sketch13.addGeometry(Part.Circle(App.Vector(-18, 34, 0), App.Vector(0, 0, 1), 2.5), False)
sketch13.addConstraint(Sketcher.Constraint("Coincident", 1, 3, 0, 3))
sketch13.addConstraint(Sketcher.Constraint("Coincident", 3, 3, 2, 3))
sketch13.addConstraint(Sketcher.Constraint("Equal", 0, 2))
sketch13.addConstraint(Sketcher.Constraint("Equal", 1, 3))
sketch13.addConstraint(Sketcher.Constraint("Horizontal", 1, 3, 2, 3))
sketch13.addConstraint(Sketcher.Constraint("Diameter", 0, 12.0))
sketch13.addConstraint(Sketcher.Constraint("Diameter", 1, 5.0))
sketch13.addConstraint(Sketcher.Constraint("DistanceY", -1, 1, 0, 3, 34.0))
sketch13.addConstraint(Sketcher.Constraint("DistanceX", 2, 3, -1, 1, 18.0))
sketch13.addConstraint(Sketcher.Constraint("DistanceX", -1, 1, 0, 3, 66.5))
pad8 = body4.newObject("PartDesign::Pad", "Pad007")
pad8.Profile = sketch13
pad8.Length = 8
pad8.Reversed = True
body7 = doc.addObject("PartDesign::Body", "Body006")

# Sketch on XY plane
sketch14 = body7.newObject("Sketcher::SketchObject", "Sketch013")
sketch14.AttachmentSupport = (doc.getObject("XY_Plane006"), [""])
sketch14.MapMode = "FlatFace"
sketch14.AttachmentOffset = App.Placement(App.Vector(0, 0, 68), App.Rotation())
add_polygon(sketch14, [(-73, 80), (-73, -31), (52, -31), (52, 80)])  # lines 0-3
sketch14.addConstraint(Sketcher.Constraint("Vertical", 0))
sketch14.addConstraint(Sketcher.Constraint("Horizontal", 1))
sketch14.addConstraint(Sketcher.Constraint("Vertical", 2))
sketch14.addConstraint(Sketcher.Constraint("Horizontal", 3))
sketch14.addConstraint(Sketcher.Constraint("DistanceY", 0, 2, 0, 1, 110.5))
sketch14.addConstraint(Sketcher.Constraint("DistanceY", 0, 2, -1, 1, 31.0))
sketch14.addConstraint(Sketcher.Constraint("DistanceX", 1, 1, 1, 2, 124.48))
sketch14.addConstraint(Sketcher.Constraint("DistanceX", -1, 1, 1, 2, 51.5))
pad9 = body7.newObject("PartDesign::Pad", "Pad008")
pad9.Profile = sketch14
pad9.Length = 3
pad9.Reversed = True
doc.recompute()

body8 = doc.addObject("PartDesign::Body", "Body007")
body8.BaseFeature = body7
boolean2 = body2.newObject("PartDesign::Boolean", "Boolean001")
boolean2.Type = "Cut"
boolean2.addObjects([body8])
doc.recompute()

body9 = doc.addObject("PartDesign::Body", "Body008")
body9.BaseFeature = body7
boolean3 = body3.newObject("PartDesign::Boolean", "Boolean002")
boolean3.Type = "Cut"
boolean3.addObjects([body9])
doc.recompute()
body4.AllowCompound = True
doc.recompute()

body10 = doc.addObject("PartDesign::Body", "Body009")
body10.BaseFeature = body7
boolean4 = body4.newObject("PartDesign::Boolean", "Boolean003")
boolean4.Type = "Cut"
boolean4.addObjects([body10])
doc.recompute()

boolean5 = body6.newObject("PartDesign::Boolean", "Boolean004")
boolean5.Type = "Cut"
boolean5.addObjects([body7])
doc.recompute()

boolean6 = body.newObject("PartDesign::Boolean", "Boolean005")
boolean6.Type = "Fuse"
boolean6.addObjects([body2])

# Sketch on XY plane
sketch15 = body.newObject("Sketcher::SketchObject", "Sketch014")
sketch15.AttachmentSupport = (doc.getObject("XY_Plane"), [""])
sketch15.MapMode = "FlatFace"
add_polygon(sketch15, [(-63.7, 81), (39.4, 81), (39.4, 91), (24.3, 101), (-45.7, 101), (-63.7, 91)])  # lines 0-5
sketch15.addGeometry(Part.Circle(App.Vector(-45.7, 91, 0), App.Vector(0, 0, 1), 2.5), False)  # 6
sketch15.addGeometry(Part.Circle(App.Vector(-28.2, 91, 0), App.Vector(0, 0, 1), 2.5), False)  # 7
sketch15.addGeometry(Part.Circle(App.Vector(-10.7, 91, 0), App.Vector(0, 0, 1), 2.5), False)  # 8
sketch15.addGeometry(Part.Circle(App.Vector(6.8, 91, 0), App.Vector(0, 0, 1), 2.5), False)  # 9
sketch15.addGeometry(Part.Circle(App.Vector(24.3, 91, 0), App.Vector(0, 0, 1), 2.5), False)  # 10
add_polygon(sketch15, [(-45.7, -52.5), (24.3, -52.5), (39.4, -42.5), (39.4, -32.5), (-63.7, -32.5), (-63.7, -42.5)])  # lines 11-16
sketch15.addGeometry(Part.Circle(App.Vector(-45.7, -42.5, 0), App.Vector(0, 0, 1), 2.5), False)  # 17
sketch15.addGeometry(Part.Circle(App.Vector(-28.2, -42.5, 0), App.Vector(0, 0, 1), 2.5), False)  # 18
sketch15.addGeometry(Part.Circle(App.Vector(-10.7, -42.5, 0), App.Vector(0, 0, 1), 2.5), False)  # 19
sketch15.addGeometry(Part.Circle(App.Vector(6.8, -42.5, 0), App.Vector(0, 0, 1), 2.5), False)  # 20
sketch15.addGeometry(Part.Circle(App.Vector(24.3, -42.5, 0), App.Vector(0, 0, 1), 2.5), False)  # 21
sketch15.addConstraint(Sketcher.Constraint("Horizontal", 0))
sketch15.addConstraint(Sketcher.Constraint("Vertical", 1))
sketch15.addConstraint(Sketcher.Constraint("Horizontal", 3))
sketch15.addConstraint(Sketcher.Constraint("Vertical", 5))
sketch15.addConstraint(Sketcher.Constraint("Horizontal", 11))
sketch15.addConstraint(Sketcher.Constraint("Vertical", 13))
sketch15.addConstraint(Sketcher.Constraint("Horizontal", 14))
sketch15.addConstraint(Sketcher.Constraint("Vertical", 15))
sketch15.addConstraint(Sketcher.Constraint("Equal", 6, 7))
sketch15.addConstraint(Sketcher.Constraint("Equal", 7, 8))
sketch15.addConstraint(Sketcher.Constraint("Equal", 8, 9))
sketch15.addConstraint(Sketcher.Constraint("Equal", 9, 10))
sketch15.addConstraint(Sketcher.Constraint("Equal", 10, 17))
sketch15.addConstraint(Sketcher.Constraint("Equal", 17, 18))
sketch15.addConstraint(Sketcher.Constraint("Equal", 18, 19))
sketch15.addConstraint(Sketcher.Constraint("Equal", 19, 20))
sketch15.addConstraint(Sketcher.Constraint("Equal", 20, 21))
sketch15.addConstraint(Sketcher.Constraint("Horizontal", 6, 3, 7, 3))
sketch15.addConstraint(Sketcher.Constraint("Horizontal", 7, 3, 8, 3))
sketch15.addConstraint(Sketcher.Constraint("Horizontal", 8, 3, 9, 3))
sketch15.addConstraint(Sketcher.Constraint("Horizontal", 9, 3, 10, 3))
sketch15.addConstraint(Sketcher.Constraint("Horizontal", 17, 3, 18, 3))
sketch15.addConstraint(Sketcher.Constraint("Horizontal", 18, 3, 19, 3))
sketch15.addConstraint(Sketcher.Constraint("Horizontal", 19, 3, 20, 3))
sketch15.addConstraint(Sketcher.Constraint("Horizontal", 20, 3, 21, 3))
sketch15.addConstraint(Sketcher.Constraint("Horizontal", 10, 3, 1, 2))
sketch15.addConstraint(Sketcher.Constraint("Horizontal", 1, 2, 4, 2))
sketch15.addConstraint(Sketcher.Constraint("Horizontal", 21, 3, 12, 2))
sketch15.addConstraint(Sketcher.Constraint("Horizontal", 12, 2, 15, 2))
sketch15.addConstraint(Sketcher.Constraint("Vertical", 6, 3, 17, 3))
sketch15.addConstraint(Sketcher.Constraint("Vertical", 7, 3, 18, 3))
sketch15.addConstraint(Sketcher.Constraint("Vertical", 8, 3, 19, 3))
sketch15.addConstraint(Sketcher.Constraint("Vertical", 9, 3, 20, 3))
sketch15.addConstraint(Sketcher.Constraint("Vertical", 10, 3, 21, 3))
sketch15.addConstraint(Sketcher.Constraint("Vertical", 21, 3, 2, 2))
sketch15.addConstraint(Sketcher.Constraint("Vertical", 17, 3, 3, 2))
sketch15.addConstraint(Sketcher.Constraint("Vertical", 2, 2, 11, 2))
sketch15.addConstraint(Sketcher.Constraint("Vertical", 1, 2, 12, 2))
sketch15.addConstraint(Sketcher.Constraint("Vertical", 5, 2, 14, 2))
sketch15.addConstraint(Sketcher.Constraint("Vertical", 3, 2, 16, 2))
sketch15.addConstraint(Sketcher.Constraint("Equal", 5, 13))
sketch15.addConstraint(Sketcher.Constraint("Equal", 2, 12))
sketch15.addConstraint(Sketcher.Constraint("Diameter", 6, 5.0))
sketch15.addConstraint(Sketcher.Constraint("DistanceX", 3, 2, 3, 1, 70.0))
sketch15.addConstraint(Sketcher.Constraint("DistanceY", 1, 1, 1, 2, 10.0))
sketch15.addConstraint(Sketcher.Constraint("DistanceY", -1, 1, 6, 3, 91.0))
sketch15.addConstraint(Sketcher.Constraint("DistanceY", -1, 1, 2, 2, 101.0))
sketch15.addConstraint(Sketcher.Constraint("DistanceX", 6, 3, 8, 3, 35.0))
sketch15.addConstraint(Sketcher.Constraint("DistanceX", 7, 3, 9, 3, 35.0))
sketch15.addConstraint(Sketcher.Constraint("DistanceX", 4, 2, 6, 3, 18.0))
sketch15.addConstraint(Sketcher.Constraint("DistanceY", 17, 3, -1, 1, 42.5))
sketch15.addConstraint(Sketcher.Constraint("DistanceX", 6, 3, 7, 3, 17.5))
sketch15.addConstraint(Sketcher.Constraint("DistanceX", 6, 3, -1, 1, 45.74))
sketch15.addConstraint(Sketcher.Constraint("DistanceX", 0, 1, 0, 2, 103.188089))
pad10 = body.newObject("PartDesign::Pad", "Pad009")
pad10.Profile = sketch15
pad10.Length = 6

doc.recompute()
